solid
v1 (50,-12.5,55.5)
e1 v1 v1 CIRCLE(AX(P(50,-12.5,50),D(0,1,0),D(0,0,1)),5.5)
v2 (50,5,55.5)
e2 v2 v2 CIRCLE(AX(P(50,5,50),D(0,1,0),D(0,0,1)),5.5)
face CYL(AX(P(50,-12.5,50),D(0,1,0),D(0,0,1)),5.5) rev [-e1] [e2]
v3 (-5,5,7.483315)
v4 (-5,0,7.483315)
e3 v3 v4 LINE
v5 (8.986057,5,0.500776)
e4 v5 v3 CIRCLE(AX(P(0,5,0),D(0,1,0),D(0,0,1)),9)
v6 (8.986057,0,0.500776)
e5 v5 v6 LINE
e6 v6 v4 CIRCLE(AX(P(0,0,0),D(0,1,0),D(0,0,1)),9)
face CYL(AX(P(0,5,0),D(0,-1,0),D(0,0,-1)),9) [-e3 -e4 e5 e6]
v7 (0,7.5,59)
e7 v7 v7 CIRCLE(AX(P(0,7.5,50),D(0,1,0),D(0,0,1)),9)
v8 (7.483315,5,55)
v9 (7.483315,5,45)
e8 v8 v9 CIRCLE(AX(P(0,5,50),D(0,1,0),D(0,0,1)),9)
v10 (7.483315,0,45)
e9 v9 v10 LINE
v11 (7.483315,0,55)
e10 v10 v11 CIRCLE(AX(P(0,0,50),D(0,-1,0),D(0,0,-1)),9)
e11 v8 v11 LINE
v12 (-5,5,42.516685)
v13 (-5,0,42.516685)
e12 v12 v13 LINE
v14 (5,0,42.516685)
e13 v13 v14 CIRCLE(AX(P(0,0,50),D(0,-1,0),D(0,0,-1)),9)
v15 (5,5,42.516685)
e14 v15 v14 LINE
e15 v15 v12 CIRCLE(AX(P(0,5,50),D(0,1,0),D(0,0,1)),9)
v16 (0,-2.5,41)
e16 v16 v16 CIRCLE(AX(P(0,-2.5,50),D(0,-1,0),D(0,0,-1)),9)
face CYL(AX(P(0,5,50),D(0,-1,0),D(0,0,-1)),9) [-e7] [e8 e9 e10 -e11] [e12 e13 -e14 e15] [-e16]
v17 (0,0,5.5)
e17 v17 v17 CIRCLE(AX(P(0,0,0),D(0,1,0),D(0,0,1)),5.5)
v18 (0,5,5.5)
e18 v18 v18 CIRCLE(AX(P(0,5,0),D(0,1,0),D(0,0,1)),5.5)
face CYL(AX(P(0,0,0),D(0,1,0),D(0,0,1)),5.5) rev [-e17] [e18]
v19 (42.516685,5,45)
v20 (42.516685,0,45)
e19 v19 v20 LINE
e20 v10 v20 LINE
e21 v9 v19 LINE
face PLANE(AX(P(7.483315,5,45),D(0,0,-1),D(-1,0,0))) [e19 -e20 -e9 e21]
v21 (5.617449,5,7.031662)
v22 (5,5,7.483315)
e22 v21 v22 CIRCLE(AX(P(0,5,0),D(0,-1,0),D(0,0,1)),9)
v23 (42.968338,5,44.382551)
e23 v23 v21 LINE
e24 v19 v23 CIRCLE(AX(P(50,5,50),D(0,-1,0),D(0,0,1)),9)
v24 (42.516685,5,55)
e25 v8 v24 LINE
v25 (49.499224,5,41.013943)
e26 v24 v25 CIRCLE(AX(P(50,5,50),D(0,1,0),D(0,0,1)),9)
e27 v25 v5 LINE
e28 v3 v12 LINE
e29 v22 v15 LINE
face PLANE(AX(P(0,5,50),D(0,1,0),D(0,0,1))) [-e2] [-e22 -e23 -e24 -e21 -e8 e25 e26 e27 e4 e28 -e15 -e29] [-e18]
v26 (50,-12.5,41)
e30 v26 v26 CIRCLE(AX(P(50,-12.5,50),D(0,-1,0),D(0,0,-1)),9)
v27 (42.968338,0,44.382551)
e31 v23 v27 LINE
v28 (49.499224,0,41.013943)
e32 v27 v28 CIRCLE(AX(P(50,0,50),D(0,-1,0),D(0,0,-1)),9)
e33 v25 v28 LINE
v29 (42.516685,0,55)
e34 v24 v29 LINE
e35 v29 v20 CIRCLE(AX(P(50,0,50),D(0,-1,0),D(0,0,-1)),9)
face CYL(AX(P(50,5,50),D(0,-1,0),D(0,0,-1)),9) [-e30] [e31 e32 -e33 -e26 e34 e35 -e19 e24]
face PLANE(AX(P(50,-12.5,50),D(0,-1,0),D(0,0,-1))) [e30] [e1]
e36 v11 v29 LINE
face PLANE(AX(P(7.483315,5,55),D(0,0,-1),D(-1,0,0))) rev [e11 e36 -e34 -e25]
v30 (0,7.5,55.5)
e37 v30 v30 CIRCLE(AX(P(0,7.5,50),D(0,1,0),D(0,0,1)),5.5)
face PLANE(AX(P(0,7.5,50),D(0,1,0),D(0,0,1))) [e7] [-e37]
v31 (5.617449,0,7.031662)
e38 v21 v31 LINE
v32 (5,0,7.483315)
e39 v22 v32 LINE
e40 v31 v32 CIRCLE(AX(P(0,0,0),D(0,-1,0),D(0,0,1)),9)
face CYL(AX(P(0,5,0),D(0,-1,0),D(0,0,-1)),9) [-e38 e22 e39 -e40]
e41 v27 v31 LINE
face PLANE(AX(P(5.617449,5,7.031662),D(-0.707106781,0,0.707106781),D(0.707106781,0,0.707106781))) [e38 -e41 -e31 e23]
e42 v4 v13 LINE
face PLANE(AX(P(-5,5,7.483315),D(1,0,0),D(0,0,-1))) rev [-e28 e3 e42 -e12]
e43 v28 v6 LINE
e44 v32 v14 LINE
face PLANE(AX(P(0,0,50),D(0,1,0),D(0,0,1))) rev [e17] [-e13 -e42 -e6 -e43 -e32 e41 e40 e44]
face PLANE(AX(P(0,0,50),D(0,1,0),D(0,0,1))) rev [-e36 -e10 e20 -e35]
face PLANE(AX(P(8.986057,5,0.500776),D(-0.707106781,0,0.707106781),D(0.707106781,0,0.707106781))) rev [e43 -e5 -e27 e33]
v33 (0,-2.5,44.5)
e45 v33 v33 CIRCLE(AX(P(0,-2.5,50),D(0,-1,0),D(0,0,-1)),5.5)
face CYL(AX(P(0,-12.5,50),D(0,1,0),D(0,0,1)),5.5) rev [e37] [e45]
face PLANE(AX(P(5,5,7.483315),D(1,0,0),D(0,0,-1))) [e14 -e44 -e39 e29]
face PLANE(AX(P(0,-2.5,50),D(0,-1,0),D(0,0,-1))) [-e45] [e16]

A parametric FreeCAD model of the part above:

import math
import FreeCAD as App
import Part
import Sketcher
Q = App.Units.Quantity

doc = App.newDocument("Part")
body = doc.addObject("PartDesign::Body", "Body")

sketch1 = doc.addObject("Sketcher::SketchObject", "Sketch")
body.addObject(sketch1)
sketch1.AttachmentSupport = (doc.XZ_Plane, [""])
sketch1.MapMode = "FlatFace"
sketch1.addGeometry(Part.LineSegment(App.Vector(-5, 7.5, 0), App.Vector(-5, 42.5, 0)), False)
sketch1.addGeometry(Part.ArcOfCircle(Part.Circle(App.Vector(0, 50, 0), App.Vector(0, 0, 1), 9), math.radians(34), math.radians(236)), False)
sketch1.addGeometry(Part.LineSegment(App.Vector(7.5, 55, 0), App.Vector(42.5, 55, 0)), False)
sketch1.addGeometry(Part.ArcOfCircle(Part.Circle(App.Vector(50, 50, 0), App.Vector(0, 0, 1), 9), math.radians(-93), math.radians(146)), False)
sketch1.addGeometry(Part.LineSegment(App.Vector(49.5, 41, 0), App.Vector(9, 0.5, 0)), False)
sketch1.addGeometry(Part.ArcOfCircle(Part.Circle(App.Vector(0, 0, 0), App.Vector(0, 0, 1), 9), math.radians(124), math.radians(363)), False)
sketch1.addGeometry(Part.LineSegment(App.Vector(5, 42.5, 0), App.Vector(5, 7.5, 0)), False)
sketch1.addGeometry(Part.ArcOfCircle(Part.Circle(App.Vector(0, 0, 0), App.Vector(0, 0, 1), 9), math.radians(51.38), math.radians(56.25)), False)
sketch1.addGeometry(Part.LineSegment(App.Vector(5.6, 7, 0), App.Vector(43, 44.4, 0)), False)
sketch1.addGeometry(Part.ArcOfCircle(Part.Circle(App.Vector(50, 50, 0), App.Vector(0, 0, 1), 9), math.radians(-146.25), math.radians(-141.38)), False)
sketch1.addGeometry(Part.LineSegment(App.Vector(42.5, 45, 0), App.Vector(7.5, 45, 0)), False)
sketch1.addGeometry(Part.ArcOfCircle(Part.Circle(App.Vector(0, 50, 0), App.Vector(0, 0, 1), 9), math.radians(-56), math.radians(-34)), False)
sketch1.addConstraint(Sketcher.Constraint("Coincident", 0, 2, 1, 2))
sketch1.addConstraint(Sketcher.Constraint("Coincident", 1, 1, 2, 1))
sketch1.addConstraint(Sketcher.Constraint("Coincident", 2, 2, 3, 2))
sketch1.addConstraint(Sketcher.Constraint("Coincident", 3, 1, 4, 1))
sketch1.addConstraint(Sketcher.Constraint("Coincident", 4, 2, 5, 2))
sketch1.addConstraint(Sketcher.Constraint("Coincident", 5, 1, 0, 1))
sketch1.addConstraint(Sketcher.Constraint("Coincident", 6, 2, 7, 2))
sketch1.addConstraint(Sketcher.Constraint("Coincident", 7, 1, 8, 1))
sketch1.addConstraint(Sketcher.Constraint("Coincident", 8, 2, 9, 2))
sketch1.addConstraint(Sketcher.Constraint("Coincident", 9, 1, 10, 1))
sketch1.addConstraint(Sketcher.Constraint("Coincident", 10, 2, 11, 2))
sketch1.addConstraint(Sketcher.Constraint("Coincident", 11, 1, 6, 1))
sketch1.addConstraint(Sketcher.Constraint("Vertical", 0))
sketch1.addConstraint(Sketcher.Constraint("Horizontal", 2))
sketch1.addConstraint(Sketcher.Constraint("Vertical", 6))
sketch1.addConstraint(Sketcher.Constraint("Horizontal", 10))
sketch1.addConstraint(Sketcher.Constraint("Coincident", 5, 3, -1, 1))
sketch1.addConstraint(Sketcher.Constraint("Coincident", 7, 3, -1, 1))
sketch1.addConstraint(Sketcher.Constraint("Coincident", 9, 3, 3, 3))
sketch1.addConstraint(Sketcher.Constraint("Coincident", 11, 3, 1, 3))
sketch1.addConstraint(Sketcher.Constraint("Equal", 1, 3))
sketch1.addConstraint(Sketcher.Constraint("Equal", 3, 5))
sketch1.addConstraint(Sketcher.Constraint("Equal", 5, 7))
sketch1.addConstraint(Sketcher.Constraint("Equal", 7, 9))
sketch1.addConstraint(Sketcher.Constraint("Equal", 9, 11))
sketch1.addConstraint(Sketcher.Constraint("Symmetric", 0, 2, 11, 1, -2))
sketch1.addConstraint(Sketcher.Constraint("Parallel", 4, 8))
sketch1.addConstraint(Sketcher.Constraint("Horizontal", 1, 3, 3, 3))
sketch1.addConstraint(Sketcher.Constraint("Vertical", 2, 2, 9, 1))
sketch1.addConstraint(Sketcher.Constraint("Equal", 10, 0))
sketch1.addConstraint(Sketcher.Constraint("Radius", 1, Q("9 mm")))
sketch1.addConstraint(Sketcher.Constraint("Angle", 4, Q("-135 deg")))
sketch1.addConstraint(Sketcher.Constraint("DistanceY", -1, 1, 1, 3, Q("50 mm")))
sketch1.addConstraint(Sketcher.Constraint("DistanceX", -1, 1, 3, 3, Q("50 mm")))
sketch1.addConstraint(Sketcher.Constraint("DistanceX", 0, 2, -1, 1, Q("5 mm")))
sketch1.addConstraint(Sketcher.Constraint("Distance", 4, Q("57.29427 mm")))
sketch1.addConstraint(Sketcher.Constraint("DistanceX", -1, 1, 7, 1, Q("5.617449 mm")))
pad1 = doc.addObject("PartDesign::Pad", "Pad")
body.addObject(pad1)
pad1.Profile = sketch1
pad1.Length = 5
pad1.Reversed = True

sketch2 = doc.addObject("Sketcher::SketchObject", "Sketch001")
body.addObject(sketch2)
sketch2.AttachmentSupport = (doc.XZ_Plane, [""])
sketch2.MapMode = "FlatFace"
sketch2.AttachmentOffset = App.Placement(App.Vector(0, 0, 12.5), App.Rotation())
sketch2.addGeometry(Part.Circle(App.Vector(50, 50, 0), App.Vector(0, 0, 1), 9), False)
sketch2.addConstraint(Sketcher.Constraint("Diameter", 0, Q("18 mm")))
sketch2.addConstraint(Sketcher.Constraint("DistanceX", -1, 1, 0, 3, Q("50 mm")))
sketch2.addConstraint(Sketcher.Constraint("DistanceY", -1, 1, 0, 3, Q("50 mm")))
pad2 = doc.addObject("PartDesign::Pad", "Pad001")
body.addObject(pad2)
pad2.Profile = sketch2
pad2.Length = 12.5
pad2.Reversed = True

sketch3 = doc.addObject("Sketcher::SketchObject", "Sketch002")
body.addObject(sketch3)
sketch3.AttachmentSupport = (doc.XZ_Plane, [""])
sketch3.MapMode = "FlatFace"
sketch3.AttachmentOffset = App.Placement(App.Vector(0, 0, -5), App.Rotation())
sketch3.addGeometry(Part.Circle(App.Vector(0, 0, 0), App.Vector(0, 0, 1), 6), False)
sketch3.addConstraint(Sketcher.Constraint("Coincident", 0, 3, -1, 1))
sketch3.addConstraint(Sketcher.Constraint("Diameter", 0, Q("11 mm")))
pocket1 = doc.addObject("PartDesign::Pocket", "Pocket")
body.addObject(pocket1)
pocket1.Profile = sketch3
pocket1.Length = 5
pocket1.Reversed = True

sketch4 = doc.addObject("Sketcher::SketchObject", "Sketch003")
body.addObject(sketch4)
sketch4.AttachmentSupport = (doc.XZ_Plane, [""])
sketch4.MapMode = "FlatFace"
sketch4.AttachmentOffset = App.Placement(App.Vector(0, 0, 2.5), App.Rotation())
sketch4.addGeometry(Part.Circle(App.Vector(0, 50, 0), App.Vector(0, 0, 1), 9), False)
sketch4.addConstraint(Sketcher.Constraint("PointOnObject", 0, 3, -2))
sketch4.addConstraint(Sketcher.Constraint("Diameter", 0, Q("18 mm")))
sketch4.addConstraint(Sketcher.Constraint("DistanceY", -1, 1, 0, 3, Q("50 mm")))
pad3 = doc.addObject("PartDesign::Pad", "Pad002")
body.addObject(pad3)
pad3.Profile = sketch4
pad3.Length = 2.5
pad3.Reversed = True

sketch5 = doc.addObject("Sketcher::SketchObject", "Sketch004")
body.addObject(sketch5)
sketch5.AttachmentSupport = (doc.XZ_Plane, [""])
sketch5.MapMode = "FlatFace"
sketch5.AttachmentOffset = App.Placement(App.Vector(0, 0, -5), App.Rotation())
sketch5.addGeometry(Part.Circle(App.Vector(0, 50, 0), App.Vector(0, 0, 1), 9), False)
sketch5.addConstraint(Sketcher.Constraint("PointOnObject", 0, 3, -2))
sketch5.addConstraint(Sketcher.Constraint("Diameter", 0, Q("18 mm")))
sketch5.addConstraint(Sketcher.Constraint("DistanceY", -1, 1, 0, 3, Q("50 mm")))
pad4 = doc.addObject("PartDesign::Pad", "Pad003")
body.addObject(pad4)
pad4.Profile = sketch5
pad4.Length = 2.5
pad4.Reversed = True

sketch6 = doc.addObject("Sketcher::SketchObject", "Sketch005")
body.addObject(sketch6)
sketch6.AttachmentSupport = (doc.XZ_Plane, [""])
sketch6.MapMode = "FlatFace"
sketch6.AttachmentOffset = App.Placement(App.Vector(0, 0, -7.5), App.Rotation())
sketch6.addGeometry(Part.Circle(App.Vector(0, 50, 0), App.Vector(0, 0, 1), 6), False)
sketch6.addConstraint(Sketcher.Constraint("PointOnObject", 0, 3, -2))
sketch6.addConstraint(Sketcher.Constraint("Diameter", 0, Q("11 mm")))
sketch6.addConstraint(Sketcher.Constraint("DistanceY", -1, 1, 0, 3, Q("50 mm")))
pocket2 = doc.addObject("PartDesign::Pocket", "Pocket001")
body.addObject(pocket2)
pocket2.Profile = sketch6
pocket2.Type = "ThroughAll"
pocket2.Reversed = True

sketch7 = doc.addObject("Sketcher::SketchObject", "Sketch006")
body.addObject(sketch7)
sketch7.AttachmentSupport = (doc.XZ_Plane, [""])
sketch7.MapMode = "FlatFace"
sketch7.AttachmentOffset = App.Placement(App.Vector(0, 0, -5), App.Rotation())
sketch7.addGeometry(Part.Circle(App.Vector(50, 50, 0), App.Vector(0, 0, 1), 6), False)
sketch7.addConstraint(Sketcher.Constraint("Diameter", 0, Q("11 mm")))
sketch7.addConstraint(Sketcher.Constraint("DistanceX", -1, 1, 0, 3, Q("50 mm")))
sketch7.addConstraint(Sketcher.Constraint("DistanceY", -1, 1, 0, 3, Q("50 mm")))
pocket3 = doc.addObject("PartDesign::Pocket", "Pocket002")
body.addObject(pocket3)
pocket3.Profile = sketch7
pocket3.Type = "ThroughAll"
pocket3.Reversed = True

doc.recompute()
